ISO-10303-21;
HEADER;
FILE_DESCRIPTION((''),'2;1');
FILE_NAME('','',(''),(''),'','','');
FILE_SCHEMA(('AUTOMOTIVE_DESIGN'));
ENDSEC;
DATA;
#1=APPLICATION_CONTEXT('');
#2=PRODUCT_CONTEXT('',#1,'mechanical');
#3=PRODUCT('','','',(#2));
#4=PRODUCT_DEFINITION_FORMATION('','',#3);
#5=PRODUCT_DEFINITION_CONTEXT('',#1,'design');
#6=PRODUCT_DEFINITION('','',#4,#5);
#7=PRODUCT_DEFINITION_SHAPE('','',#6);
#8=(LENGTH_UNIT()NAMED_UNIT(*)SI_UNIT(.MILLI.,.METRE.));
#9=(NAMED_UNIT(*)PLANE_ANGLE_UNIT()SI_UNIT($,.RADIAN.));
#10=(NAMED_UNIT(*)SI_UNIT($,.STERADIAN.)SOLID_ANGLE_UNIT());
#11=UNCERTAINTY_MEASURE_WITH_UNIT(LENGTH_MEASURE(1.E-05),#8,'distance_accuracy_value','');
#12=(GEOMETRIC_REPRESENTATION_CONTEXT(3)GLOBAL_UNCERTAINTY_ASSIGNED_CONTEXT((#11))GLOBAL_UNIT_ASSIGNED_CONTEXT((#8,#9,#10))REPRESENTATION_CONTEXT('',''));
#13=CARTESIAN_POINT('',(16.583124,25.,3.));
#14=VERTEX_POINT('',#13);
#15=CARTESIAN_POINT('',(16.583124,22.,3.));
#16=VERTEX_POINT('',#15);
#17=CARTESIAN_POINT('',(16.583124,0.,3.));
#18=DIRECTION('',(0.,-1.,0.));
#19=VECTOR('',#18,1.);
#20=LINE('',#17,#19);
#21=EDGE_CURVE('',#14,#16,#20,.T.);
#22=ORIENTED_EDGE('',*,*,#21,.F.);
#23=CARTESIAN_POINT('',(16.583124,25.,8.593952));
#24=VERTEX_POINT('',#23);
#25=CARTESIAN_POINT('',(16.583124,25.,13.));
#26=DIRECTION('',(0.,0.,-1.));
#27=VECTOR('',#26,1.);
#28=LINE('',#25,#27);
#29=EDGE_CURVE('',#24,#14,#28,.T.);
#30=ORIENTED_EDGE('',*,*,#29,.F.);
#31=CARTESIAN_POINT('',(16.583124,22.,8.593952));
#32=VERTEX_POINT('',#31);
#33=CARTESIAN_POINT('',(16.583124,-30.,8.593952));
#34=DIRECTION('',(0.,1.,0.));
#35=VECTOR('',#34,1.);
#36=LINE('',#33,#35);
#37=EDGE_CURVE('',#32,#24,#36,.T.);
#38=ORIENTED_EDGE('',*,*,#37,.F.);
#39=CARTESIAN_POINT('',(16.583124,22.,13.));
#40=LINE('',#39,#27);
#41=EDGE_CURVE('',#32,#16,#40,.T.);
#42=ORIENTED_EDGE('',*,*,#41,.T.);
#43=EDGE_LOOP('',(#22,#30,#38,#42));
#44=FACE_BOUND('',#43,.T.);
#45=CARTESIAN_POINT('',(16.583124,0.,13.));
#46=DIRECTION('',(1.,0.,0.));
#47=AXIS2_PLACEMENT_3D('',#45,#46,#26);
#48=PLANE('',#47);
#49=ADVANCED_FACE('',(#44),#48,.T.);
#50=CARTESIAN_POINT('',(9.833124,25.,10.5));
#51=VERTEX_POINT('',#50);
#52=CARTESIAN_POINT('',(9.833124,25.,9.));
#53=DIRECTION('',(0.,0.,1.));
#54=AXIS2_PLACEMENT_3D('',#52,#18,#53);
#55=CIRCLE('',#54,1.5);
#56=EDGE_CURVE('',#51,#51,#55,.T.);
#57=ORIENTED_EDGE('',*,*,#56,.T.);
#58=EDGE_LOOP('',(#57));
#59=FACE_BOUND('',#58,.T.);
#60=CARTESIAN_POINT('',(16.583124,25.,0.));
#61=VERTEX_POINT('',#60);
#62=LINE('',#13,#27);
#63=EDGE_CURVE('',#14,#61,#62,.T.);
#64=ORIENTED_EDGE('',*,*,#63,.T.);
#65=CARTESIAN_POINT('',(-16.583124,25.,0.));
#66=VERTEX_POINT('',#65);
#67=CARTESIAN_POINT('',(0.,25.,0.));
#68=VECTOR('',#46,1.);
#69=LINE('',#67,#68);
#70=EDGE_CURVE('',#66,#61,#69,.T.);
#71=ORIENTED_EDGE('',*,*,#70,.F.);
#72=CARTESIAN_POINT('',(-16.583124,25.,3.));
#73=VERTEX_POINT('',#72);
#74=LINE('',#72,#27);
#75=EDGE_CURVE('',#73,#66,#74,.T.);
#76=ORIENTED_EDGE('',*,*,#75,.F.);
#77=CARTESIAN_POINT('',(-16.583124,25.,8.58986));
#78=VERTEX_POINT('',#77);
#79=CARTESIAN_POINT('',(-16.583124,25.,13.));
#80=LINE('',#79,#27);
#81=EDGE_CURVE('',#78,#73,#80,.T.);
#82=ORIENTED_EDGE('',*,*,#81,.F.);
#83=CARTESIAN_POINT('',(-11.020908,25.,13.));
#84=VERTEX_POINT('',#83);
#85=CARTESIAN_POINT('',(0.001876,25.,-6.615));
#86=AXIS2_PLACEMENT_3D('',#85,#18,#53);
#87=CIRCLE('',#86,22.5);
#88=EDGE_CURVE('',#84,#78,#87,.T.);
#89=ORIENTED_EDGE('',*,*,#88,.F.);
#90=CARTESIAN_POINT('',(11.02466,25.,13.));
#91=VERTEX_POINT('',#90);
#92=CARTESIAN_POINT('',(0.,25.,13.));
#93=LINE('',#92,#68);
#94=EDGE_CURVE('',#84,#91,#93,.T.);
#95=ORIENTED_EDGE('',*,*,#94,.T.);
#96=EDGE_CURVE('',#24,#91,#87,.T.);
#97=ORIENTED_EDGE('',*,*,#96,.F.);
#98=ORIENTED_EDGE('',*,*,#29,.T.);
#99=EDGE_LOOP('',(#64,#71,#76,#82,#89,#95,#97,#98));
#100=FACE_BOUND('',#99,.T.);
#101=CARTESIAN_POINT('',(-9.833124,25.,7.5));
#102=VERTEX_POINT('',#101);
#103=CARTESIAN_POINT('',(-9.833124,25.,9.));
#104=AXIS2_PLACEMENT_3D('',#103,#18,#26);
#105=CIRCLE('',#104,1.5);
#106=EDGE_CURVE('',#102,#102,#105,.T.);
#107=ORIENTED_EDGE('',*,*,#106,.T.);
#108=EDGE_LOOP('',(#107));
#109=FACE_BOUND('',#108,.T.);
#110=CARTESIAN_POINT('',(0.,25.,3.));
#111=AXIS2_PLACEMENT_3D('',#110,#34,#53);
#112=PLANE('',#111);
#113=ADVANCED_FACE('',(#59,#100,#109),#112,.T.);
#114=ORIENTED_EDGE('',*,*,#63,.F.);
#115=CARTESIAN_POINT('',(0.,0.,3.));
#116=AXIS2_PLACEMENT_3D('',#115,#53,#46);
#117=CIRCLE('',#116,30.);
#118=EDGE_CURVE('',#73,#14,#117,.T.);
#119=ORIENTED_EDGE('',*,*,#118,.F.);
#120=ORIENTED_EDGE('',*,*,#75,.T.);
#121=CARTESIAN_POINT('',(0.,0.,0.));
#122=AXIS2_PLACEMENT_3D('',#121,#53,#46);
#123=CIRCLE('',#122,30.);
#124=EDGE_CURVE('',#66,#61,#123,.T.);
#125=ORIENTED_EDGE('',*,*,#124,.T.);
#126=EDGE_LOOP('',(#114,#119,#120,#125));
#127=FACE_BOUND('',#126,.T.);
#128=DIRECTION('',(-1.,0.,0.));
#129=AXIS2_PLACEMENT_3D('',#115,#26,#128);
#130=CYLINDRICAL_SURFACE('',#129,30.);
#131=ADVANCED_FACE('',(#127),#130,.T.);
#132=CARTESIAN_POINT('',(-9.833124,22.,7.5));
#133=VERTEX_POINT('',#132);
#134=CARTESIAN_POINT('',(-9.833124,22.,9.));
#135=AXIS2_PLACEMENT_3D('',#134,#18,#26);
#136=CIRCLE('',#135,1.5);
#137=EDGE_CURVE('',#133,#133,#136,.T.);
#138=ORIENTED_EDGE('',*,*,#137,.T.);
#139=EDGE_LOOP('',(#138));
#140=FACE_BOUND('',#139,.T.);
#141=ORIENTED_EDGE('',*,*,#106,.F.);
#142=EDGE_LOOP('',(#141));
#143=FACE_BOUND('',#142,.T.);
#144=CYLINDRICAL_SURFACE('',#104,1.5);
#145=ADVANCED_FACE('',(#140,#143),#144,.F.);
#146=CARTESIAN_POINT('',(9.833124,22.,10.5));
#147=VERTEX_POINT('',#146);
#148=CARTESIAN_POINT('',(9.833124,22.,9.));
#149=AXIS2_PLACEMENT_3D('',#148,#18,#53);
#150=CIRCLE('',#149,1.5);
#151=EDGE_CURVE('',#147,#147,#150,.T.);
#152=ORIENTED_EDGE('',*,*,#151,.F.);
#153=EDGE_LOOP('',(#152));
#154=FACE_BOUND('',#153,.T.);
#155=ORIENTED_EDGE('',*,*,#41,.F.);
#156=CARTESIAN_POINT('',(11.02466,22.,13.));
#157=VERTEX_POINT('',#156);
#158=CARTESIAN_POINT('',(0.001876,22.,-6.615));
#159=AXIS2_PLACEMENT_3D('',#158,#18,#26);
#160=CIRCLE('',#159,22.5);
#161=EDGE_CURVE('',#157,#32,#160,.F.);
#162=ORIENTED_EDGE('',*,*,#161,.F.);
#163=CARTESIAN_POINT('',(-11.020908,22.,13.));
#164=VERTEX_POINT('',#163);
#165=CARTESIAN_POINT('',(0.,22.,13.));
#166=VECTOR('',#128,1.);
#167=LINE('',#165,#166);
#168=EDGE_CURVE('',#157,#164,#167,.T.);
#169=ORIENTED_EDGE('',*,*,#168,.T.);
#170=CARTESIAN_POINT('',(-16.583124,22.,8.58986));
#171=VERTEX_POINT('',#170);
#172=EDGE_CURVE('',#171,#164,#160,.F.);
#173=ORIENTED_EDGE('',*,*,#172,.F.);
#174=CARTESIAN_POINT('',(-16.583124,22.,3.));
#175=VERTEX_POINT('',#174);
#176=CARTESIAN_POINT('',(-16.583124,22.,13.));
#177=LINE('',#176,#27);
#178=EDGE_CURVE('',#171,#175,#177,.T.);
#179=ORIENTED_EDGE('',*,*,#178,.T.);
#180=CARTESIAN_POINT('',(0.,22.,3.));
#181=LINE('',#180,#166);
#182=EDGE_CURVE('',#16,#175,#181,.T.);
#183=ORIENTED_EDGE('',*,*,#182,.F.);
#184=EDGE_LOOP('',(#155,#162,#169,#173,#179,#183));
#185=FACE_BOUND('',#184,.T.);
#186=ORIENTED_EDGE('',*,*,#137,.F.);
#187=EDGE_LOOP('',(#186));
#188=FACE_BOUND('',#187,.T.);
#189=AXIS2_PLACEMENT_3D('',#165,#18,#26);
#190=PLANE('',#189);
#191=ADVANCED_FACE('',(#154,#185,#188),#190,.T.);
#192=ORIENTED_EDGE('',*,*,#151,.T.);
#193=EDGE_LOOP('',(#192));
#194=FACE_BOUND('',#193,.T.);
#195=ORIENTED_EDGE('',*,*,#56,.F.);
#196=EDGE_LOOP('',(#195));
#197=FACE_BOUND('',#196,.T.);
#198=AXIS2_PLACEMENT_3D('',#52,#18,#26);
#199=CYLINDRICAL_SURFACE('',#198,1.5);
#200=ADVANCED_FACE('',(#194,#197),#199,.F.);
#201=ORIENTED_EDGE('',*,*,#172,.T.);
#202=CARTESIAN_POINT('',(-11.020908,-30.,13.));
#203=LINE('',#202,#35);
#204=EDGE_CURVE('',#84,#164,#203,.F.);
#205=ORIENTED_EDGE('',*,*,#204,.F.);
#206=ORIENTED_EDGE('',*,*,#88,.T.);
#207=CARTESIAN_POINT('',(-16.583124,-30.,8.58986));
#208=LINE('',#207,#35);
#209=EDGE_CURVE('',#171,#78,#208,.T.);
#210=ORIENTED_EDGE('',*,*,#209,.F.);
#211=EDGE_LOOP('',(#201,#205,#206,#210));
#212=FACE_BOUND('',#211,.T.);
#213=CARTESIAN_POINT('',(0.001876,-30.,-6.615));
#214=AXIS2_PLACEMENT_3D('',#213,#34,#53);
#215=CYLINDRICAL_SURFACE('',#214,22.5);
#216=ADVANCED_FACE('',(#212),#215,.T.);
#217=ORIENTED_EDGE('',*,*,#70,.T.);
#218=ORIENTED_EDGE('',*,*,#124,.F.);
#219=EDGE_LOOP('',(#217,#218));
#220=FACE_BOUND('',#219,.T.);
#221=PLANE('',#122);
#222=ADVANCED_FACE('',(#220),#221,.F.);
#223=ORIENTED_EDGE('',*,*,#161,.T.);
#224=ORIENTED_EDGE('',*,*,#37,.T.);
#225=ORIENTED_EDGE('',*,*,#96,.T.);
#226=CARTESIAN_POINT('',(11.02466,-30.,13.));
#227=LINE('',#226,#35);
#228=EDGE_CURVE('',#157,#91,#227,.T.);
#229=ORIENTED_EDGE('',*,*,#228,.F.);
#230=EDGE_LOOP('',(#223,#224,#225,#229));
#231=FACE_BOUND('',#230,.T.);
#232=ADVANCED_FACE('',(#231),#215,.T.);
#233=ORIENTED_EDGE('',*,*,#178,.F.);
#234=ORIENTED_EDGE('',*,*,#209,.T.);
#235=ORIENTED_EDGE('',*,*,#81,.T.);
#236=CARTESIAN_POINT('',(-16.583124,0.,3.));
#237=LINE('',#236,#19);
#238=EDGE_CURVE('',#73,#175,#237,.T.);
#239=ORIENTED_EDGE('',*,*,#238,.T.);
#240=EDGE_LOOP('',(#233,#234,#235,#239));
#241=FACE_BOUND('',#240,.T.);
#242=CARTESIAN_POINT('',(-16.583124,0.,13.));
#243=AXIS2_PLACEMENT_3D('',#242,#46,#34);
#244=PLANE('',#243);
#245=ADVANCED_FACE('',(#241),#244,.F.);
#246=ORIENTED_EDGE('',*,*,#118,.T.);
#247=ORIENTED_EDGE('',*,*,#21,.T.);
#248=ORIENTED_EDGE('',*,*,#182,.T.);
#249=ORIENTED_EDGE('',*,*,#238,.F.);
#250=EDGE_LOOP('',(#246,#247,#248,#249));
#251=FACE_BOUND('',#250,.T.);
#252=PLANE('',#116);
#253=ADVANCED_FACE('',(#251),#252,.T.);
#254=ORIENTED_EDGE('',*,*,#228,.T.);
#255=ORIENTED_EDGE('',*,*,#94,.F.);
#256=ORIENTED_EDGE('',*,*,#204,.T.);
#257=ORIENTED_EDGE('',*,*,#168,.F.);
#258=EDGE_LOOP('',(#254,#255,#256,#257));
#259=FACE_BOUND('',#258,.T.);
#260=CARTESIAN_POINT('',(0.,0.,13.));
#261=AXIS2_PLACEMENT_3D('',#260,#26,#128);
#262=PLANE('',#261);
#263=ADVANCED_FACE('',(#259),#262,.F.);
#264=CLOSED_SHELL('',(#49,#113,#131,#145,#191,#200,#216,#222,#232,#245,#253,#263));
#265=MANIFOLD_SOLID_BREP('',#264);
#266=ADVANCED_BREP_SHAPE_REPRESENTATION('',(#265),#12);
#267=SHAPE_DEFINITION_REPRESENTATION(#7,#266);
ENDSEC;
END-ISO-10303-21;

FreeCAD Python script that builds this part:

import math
import FreeCAD as App
import Part
import Sketcher

V = App.Vector


def add_polygon(sketch, points):
    """Adds a closed chain of lines whose ends are joined by coincident constraints."""
    first, n = sketch.GeometryCount, len(points)
    for a, b in zip(points, points[1:] + points[:1]):
        sketch.addGeometry(Part.LineSegment(App.Vector(*a, 0), App.Vector(*b, 0)), False)
    for i in range(n):
        sketch.addConstraint(Sketcher.Constraint("Coincident", first + i, 2, first + (i + 1) % n, 1))

doc = App.newDocument("Part")
body = doc.addObject("PartDesign::Body", "Body")

# Sketch on XY plane
sketch1 = doc.addObject("Sketcher::SketchObject", "Sketch")
body.addObject(sketch1)
sketch1.AttachmentSupport = (doc.XY_Plane, [""])
sketch1.MapMode = "FlatFace"
sketch1.addGeometry(Part.LineSegment(V(16.583124, 25, 0), V(-16.583124, 25, 0)), False)
sketch1.addGeometry(Part.ArcOfCircle(Part.Circle(V(0, 0, 0), V(0, 0, 1), 30), math.radians(123.55731), math.radians(360)), False)
sketch1.addGeometry(Part.ArcOfCircle(Part.Circle(V(0, 0, 0), V(0, 0, 1), 30), math.radians(0), math.radians(56.44269)), False)
sketch1.addConstraint(Sketcher.Constraint("Coincident", 0, 2, 1, 1))
sketch1.addConstraint(Sketcher.Constraint("Tangent", 1, 2, 2, 1))
sketch1.addConstraint(Sketcher.Constraint("Coincident", 2, 2, 0, 1))
sketch1.addConstraint(Sketcher.Constraint("Horizontal", 0))
sketch1.addConstraint(Sketcher.Constraint("Coincident", 1, 3, -1, 1))
sketch1.addConstraint(Sketcher.Constraint("Equal", 1, 2))
sketch1.addConstraint(Sketcher.Constraint("PointOnObject", 1, 2, -1))
sketch1.addConstraint(Sketcher.Constraint("Radius", 1, 30.0))
sketch1.addConstraint(Sketcher.Constraint("DistanceY", -1, 1, 0, 2, 25.0))
pad1 = doc.addObject("PartDesign::Pad", "Pad")
body.addObject(pad1)
pad1.Profile = sketch1
pad1.Length = 3

# Sketch on XY plane
sketch2 = doc.addObject("Sketcher::SketchObject", "Sketch001")
body.addObject(sketch2)
sketch2.AttachmentSupport = (doc.XY_Plane, [""])
sketch2.MapMode = "FlatFace"
sketch2.AttachmentOffset = App.Placement(V(0, 0, 3), App.Rotation())
add_polygon(sketch2, [(16.583124, 25), (16.583124, 22), (-16.583124, 22), (-16.583124, 25)])  # lines 0-3
sketch2.addConstraint(Sketcher.Constraint("Vertical", 0))
sketch2.addConstraint(Sketcher.Constraint("Horizontal", 1))
sketch2.addConstraint(Sketcher.Constraint("Vertical", 2))
sketch2.addConstraint(Sketcher.Constraint("Horizontal", 3))
sketch2.addConstraint(Sketcher.Constraint("DistanceY", 0, 2, 0, 1, 3.0))
sketch2.addConstraint(Sketcher.Constraint("DistanceY", -1, 1, 0, 2, 22.0))
sketch2.addConstraint(Sketcher.Constraint("DistanceX", 1, 2, 1, 1, 33.166248))
sketch2.addConstraint(Sketcher.Constraint("DistanceX", -1, 1, 0, 2, 16.583124))
pad2 = doc.addObject("PartDesign::Pad", "Pad001")
body.addObject(pad2)
pad2.Profile = sketch2
pad2.Length = 10

# Sketch on XZ plane
sketch3 = doc.addObject("Sketcher::SketchObject", "Sketch002")
body.addObject(sketch3)
sketch3.AttachmentSupport = (doc.XZ_Plane, [""])
sketch3.MapMode = "FlatFace"
sketch3.AttachmentOffset = App.Placement(V(0, 0, -25), App.Rotation())
sketch3.addGeometry(Part.LineSegment(V(11.02466, 13, 0), V(16.583124, 13, 0)), False)
sketch3.addGeometry(Part.LineSegment(V(16.583124, 13, 0), V(16.583124, 8.593952, 0)), False)
sketch3.addGeometry(Part.ArcOfCircle(Part.Circle(V(0.001876, -6.615, 0), V(0, 0, 1), 22.5), math.radians(42.528232), math.radians(60.665891)), False)
sketch3.addGeometry(Part.LineSegment(V(-16.583124, 8.58986, 0), V(-16.583124, 13, 0)), False)
sketch3.addGeometry(Part.LineSegment(V(-16.583124, 13, 0), V(-11.020908, 13, 0)), False)
sketch3.addGeometry(Part.ArcOfCircle(Part.Circle(V(0.001876, -6.615, 0), V(0, 0, 1), 22.5), math.radians(119.334109), math.radians(137.485905)), False)
sketch3.addConstraint(Sketcher.Constraint("Coincident", 0, 2, 1, 1))
sketch3.addConstraint(Sketcher.Constraint("Coincident", 1, 2, 2, 1))
sketch3.addConstraint(Sketcher.Constraint("Coincident", 2, 2, 0, 1))
sketch3.addConstraint(Sketcher.Constraint("Coincident", 3, 2, 4, 1))
sketch3.addConstraint(Sketcher.Constraint("Coincident", 4, 2, 5, 1))
sketch3.addConstraint(Sketcher.Constraint("Coincident", 5, 2, 3, 1))
sketch3.addConstraint(Sketcher.Constraint("Horizontal", 0))
sketch3.addConstraint(Sketcher.Constraint("Vertical", 1))
sketch3.addConstraint(Sketcher.Constraint("Vertical", 3))
sketch3.addConstraint(Sketcher.Constraint("Horizontal", 4))
sketch3.addConstraint(Sketcher.Constraint("Coincident", 5, 3, 2, 3))
sketch3.addConstraint(Sketcher.Constraint("Equal", 2, 5))
sketch3.addConstraint(Sketcher.Constraint("Symmetric", 0, 2, 3, 2, -2))
sketch3.addConstraint(Sketcher.Constraint("Radius", 2, 22.5))
sketch3.addConstraint(Sketcher.Constraint("DistanceY", -1, 1, 0, 2, 13.0))
sketch3.addConstraint(Sketcher.Constraint("DistanceY", 2, 3, -1, 1, 6.615))
sketch3.addConstraint(Sketcher.Constraint("DistanceX", 3, 2, 2, 3, 16.585))
sketch3.addConstraint(Sketcher.Constraint("DistanceY", 1, 2, 1, 1, 4.406048))
pocket1 = doc.addObject("PartDesign::Pocket", "Pocket")
body.addObject(pocket1)
pocket1.Profile = sketch3
pocket1.Type = "ThroughAll"
pocket1.Reversed = True

# Sketch on XZ plane
sketch4 = doc.addObject("Sketcher::SketchObject", "Sketch003")
body.addObject(sketch4)
sketch4.AttachmentSupport = (doc.XZ_Plane, [""])
sketch4.MapMode = "FlatFace"
sketch4.AttachmentOffset = App.Placement(V(0, 0, -22), App.Rotation())
sketch4.addGeometry(Part.Circle(V(-9.833124, 9, 0), V(0, 0, 1), 1.5), False)
sketch4.addGeometry(Part.Circle(V(9.833124, 9, 0), V(0, 0, 1), 1.5), False)
sketch4.addConstraint(Sketcher.Constraint("Equal", 0, 1))
sketch4.addConstraint(Sketcher.Constraint("Symmetric", 0, 3, 1, 3, -2))
sketch4.addConstraint(Sketcher.Constraint("Diameter", 0, 3.0))
sketch4.addConstraint(Sketcher.Constraint("DistanceY", -1, 1, 0, 3, 9.0))
sketch4.addConstraint(Sketcher.Constraint("DistanceX", 0, 3, -1, 1, 9.833124))
pocket2 = doc.addObject("PartDesign::Pocket", "Pocket001")
body.addObject(pocket2)
pocket2.Profile = sketch4
pocket2.Type = "ThroughAll"

doc.recompute()
